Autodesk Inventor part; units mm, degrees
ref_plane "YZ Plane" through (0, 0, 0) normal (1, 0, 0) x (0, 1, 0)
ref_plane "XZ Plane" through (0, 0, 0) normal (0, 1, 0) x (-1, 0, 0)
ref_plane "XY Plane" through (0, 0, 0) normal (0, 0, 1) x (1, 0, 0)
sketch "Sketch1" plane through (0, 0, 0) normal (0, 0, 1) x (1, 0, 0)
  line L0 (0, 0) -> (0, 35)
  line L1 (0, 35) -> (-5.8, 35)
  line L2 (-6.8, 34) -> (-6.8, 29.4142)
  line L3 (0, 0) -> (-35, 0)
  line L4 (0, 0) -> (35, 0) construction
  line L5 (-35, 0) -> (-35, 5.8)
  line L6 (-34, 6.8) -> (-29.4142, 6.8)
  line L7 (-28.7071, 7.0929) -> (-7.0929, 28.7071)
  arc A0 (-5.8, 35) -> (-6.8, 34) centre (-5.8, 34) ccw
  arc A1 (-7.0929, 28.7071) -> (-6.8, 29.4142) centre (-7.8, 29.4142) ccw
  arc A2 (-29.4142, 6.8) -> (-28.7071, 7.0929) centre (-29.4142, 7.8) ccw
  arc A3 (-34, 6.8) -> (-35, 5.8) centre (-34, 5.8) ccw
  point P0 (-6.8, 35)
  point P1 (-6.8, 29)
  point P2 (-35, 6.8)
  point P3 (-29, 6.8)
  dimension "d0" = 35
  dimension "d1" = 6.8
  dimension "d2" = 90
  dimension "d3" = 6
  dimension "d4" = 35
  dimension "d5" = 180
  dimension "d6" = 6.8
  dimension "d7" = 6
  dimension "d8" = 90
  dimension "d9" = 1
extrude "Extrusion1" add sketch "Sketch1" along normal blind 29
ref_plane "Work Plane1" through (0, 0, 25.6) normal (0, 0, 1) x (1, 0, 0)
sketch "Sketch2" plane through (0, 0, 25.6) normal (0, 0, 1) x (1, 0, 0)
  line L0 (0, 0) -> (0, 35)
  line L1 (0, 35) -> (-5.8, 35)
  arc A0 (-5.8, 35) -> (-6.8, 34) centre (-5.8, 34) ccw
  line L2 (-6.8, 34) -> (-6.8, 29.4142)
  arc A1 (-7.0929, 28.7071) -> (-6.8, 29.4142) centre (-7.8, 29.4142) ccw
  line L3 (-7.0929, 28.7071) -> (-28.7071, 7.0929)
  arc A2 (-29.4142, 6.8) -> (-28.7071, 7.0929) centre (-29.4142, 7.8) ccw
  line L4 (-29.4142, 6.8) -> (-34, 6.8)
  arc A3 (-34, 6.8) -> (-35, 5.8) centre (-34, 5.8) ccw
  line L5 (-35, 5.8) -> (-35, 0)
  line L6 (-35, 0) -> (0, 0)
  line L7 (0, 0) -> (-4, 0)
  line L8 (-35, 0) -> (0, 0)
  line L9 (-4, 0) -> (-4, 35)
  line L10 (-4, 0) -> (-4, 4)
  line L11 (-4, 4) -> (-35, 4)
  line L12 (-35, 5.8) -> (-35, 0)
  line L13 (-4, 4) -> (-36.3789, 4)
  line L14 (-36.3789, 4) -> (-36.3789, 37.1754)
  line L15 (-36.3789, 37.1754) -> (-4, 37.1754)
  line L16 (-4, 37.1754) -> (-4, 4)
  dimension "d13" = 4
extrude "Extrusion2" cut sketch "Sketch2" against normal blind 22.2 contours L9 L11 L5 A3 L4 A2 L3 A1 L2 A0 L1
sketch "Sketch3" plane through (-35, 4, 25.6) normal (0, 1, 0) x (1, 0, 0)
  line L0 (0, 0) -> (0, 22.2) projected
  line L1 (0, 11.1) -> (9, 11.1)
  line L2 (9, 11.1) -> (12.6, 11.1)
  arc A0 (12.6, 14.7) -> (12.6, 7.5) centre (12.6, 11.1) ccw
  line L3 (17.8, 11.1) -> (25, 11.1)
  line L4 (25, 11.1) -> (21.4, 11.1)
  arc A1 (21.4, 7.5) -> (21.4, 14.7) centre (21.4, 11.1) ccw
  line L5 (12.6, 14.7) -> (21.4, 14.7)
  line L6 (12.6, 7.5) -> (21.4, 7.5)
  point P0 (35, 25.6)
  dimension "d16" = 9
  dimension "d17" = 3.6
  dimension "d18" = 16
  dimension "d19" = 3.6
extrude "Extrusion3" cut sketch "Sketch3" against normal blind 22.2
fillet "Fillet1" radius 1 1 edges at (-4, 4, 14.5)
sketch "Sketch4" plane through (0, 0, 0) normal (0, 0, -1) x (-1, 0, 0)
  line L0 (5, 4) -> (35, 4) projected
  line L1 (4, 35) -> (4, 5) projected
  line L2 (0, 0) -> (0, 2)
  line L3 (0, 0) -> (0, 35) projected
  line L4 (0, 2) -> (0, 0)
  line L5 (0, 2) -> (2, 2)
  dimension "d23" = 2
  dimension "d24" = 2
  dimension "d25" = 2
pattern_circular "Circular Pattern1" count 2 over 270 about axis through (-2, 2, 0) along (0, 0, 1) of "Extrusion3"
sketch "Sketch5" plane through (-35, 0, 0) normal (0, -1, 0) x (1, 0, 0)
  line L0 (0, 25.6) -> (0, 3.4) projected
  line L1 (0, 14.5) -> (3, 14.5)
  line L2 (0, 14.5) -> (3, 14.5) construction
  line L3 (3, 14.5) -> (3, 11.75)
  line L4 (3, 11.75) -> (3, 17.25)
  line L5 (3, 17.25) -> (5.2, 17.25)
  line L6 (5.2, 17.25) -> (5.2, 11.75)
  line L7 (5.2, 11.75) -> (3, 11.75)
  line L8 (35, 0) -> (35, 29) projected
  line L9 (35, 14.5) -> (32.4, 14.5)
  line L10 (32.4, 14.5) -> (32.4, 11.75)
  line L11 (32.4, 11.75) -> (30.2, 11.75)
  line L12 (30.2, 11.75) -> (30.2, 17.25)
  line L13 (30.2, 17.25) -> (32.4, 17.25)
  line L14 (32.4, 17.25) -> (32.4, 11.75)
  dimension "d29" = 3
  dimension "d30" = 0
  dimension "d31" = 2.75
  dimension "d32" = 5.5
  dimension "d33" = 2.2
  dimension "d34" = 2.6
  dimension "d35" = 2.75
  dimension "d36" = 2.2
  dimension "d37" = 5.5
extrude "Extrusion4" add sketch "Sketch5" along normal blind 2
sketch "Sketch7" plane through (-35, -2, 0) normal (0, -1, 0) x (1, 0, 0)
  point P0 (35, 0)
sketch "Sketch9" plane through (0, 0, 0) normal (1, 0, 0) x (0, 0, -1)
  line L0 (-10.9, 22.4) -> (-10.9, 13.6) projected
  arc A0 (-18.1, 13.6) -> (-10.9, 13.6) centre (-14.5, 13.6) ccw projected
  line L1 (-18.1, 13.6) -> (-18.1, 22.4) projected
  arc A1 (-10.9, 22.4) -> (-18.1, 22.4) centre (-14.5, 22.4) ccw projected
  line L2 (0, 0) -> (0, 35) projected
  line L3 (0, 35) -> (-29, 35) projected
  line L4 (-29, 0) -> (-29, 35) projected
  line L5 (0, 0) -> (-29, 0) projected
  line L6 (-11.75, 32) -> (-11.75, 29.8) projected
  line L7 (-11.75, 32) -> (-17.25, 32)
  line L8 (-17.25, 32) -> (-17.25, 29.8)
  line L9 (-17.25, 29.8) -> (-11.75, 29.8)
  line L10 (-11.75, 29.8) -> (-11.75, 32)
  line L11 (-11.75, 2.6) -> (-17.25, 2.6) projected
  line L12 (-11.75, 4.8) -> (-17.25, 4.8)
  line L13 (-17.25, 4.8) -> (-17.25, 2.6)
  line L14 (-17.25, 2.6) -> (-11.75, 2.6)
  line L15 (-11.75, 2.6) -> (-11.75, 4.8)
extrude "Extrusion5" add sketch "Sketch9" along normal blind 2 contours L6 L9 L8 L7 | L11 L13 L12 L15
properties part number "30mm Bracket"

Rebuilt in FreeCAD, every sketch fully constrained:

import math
import FreeCAD as App
import Part
import Sketcher

V = App.Vector


def edges_at(feature, points):
    """Names of the edges that pass closest to the given points."""
    edges = feature.Shape.Edges
    near = lambda p: min(range(len(edges)), key=lambda i: edges[i].distToShape(Part.Vertex(*p))[0])
    return sorted({f"Edge{near(p) + 1}" for p in points})


def add_polygon(sketch, points):
    """Adds a closed chain of lines whose ends are joined by coincident constraints."""
    first, n = sketch.GeometryCount, len(points)
    for a, b in zip(points, points[1:] + points[:1]):
        sketch.addGeometry(Part.LineSegment(App.Vector(*a, 0), App.Vector(*b, 0)), False)
    for i in range(n):
        sketch.addConstraint(Sketcher.Constraint("Coincident", first + i, 2, first + (i + 1) % n, 1))

doc = App.newDocument("Part")
params = doc.addObject("Spreadsheet::Sheet", "Params")
for row, (alias, value) in enumerate([
    ("sketch1_radius", "1 mm"),
    ("sketch1_width", "35 mm"),
    ("pad1_length", "29 mm"),
    ("sketch2_radius", "1 mm"),
    ("sketch2_width", "31 mm"),
    ("sketch2_width2", "1.8 mm"),
    ("pocket1_length", "22.2 mm"),
    ("sketch3_radius", "3.6 mm"),
    ("sketch3_width", "8.8 mm"),
    ("pocket2_length", "22.2 mm"),
    ("fillet_radius", "1 mm"),
    ("sketch4_width", "2.2 mm"),
    ("sketch4_height", "5.5 mm"),
    ("pad2_length", "2 mm"),
    ("sketch5_width", "2.2 mm"),
    ("sketch5_height", "5.5 mm"),
    ("pad3_length", "2 mm"),
], start=1):
    params.set(f"A{row}", alias)
    params.set(f"B{row}", "=" + value)
    params.setAlias(f"B{row}", alias)

body = doc.addObject("PartDesign::Body", "Body")

sketch1 = body.newObject("Sketcher::SketchObject", "Sketch")
sketch1.AttachmentSupport = (doc.getObject("XY_Plane"), [""])
sketch1.MapMode = "FlatFace"
sketch1.addGeometry([
    Part.LineSegment(V(-35, 0, 0), V(0, 0, 0)),
    Part.LineSegment(V(0, 0, 0), V(0, 35, 0)),
    Part.LineSegment(V(0, 35, 0), V(-5.8, 35, 0)),
    Part.ArcOfCircle(Part.Circle(V(-5.8, 34, 0), V(0, 0, 1), 1), math.radians(90), math.radians(180)),
    Part.LineSegment(V(-6.8, 34, 0), V(-6.8, 29.4, 0)),
    Part.ArcOfCircle(Part.Circle(V(-7.8, 29.4, 0), V(0, 0, 1), 1), math.radians(-45), math.radians(0)),
    Part.LineSegment(V(-7.1, 28.7, 0), V(-28.7, 7.1, 0)),
    Part.ArcOfCircle(Part.Circle(V(-29.4, 7.8, 0), V(0, 0, 1), 1), math.radians(-90), math.radians(-45)),
    Part.LineSegment(V(-29.4, 6.8, 0), V(-34, 6.8, 0)),
    Part.ArcOfCircle(Part.Circle(V(-34, 5.8, 0), V(0, 0, 1), 1), math.radians(90), math.radians(180)),
    Part.LineSegment(V(-35, 5.8, 0), V(-35, 0, 0)),
], False)
sketch1.addConstraint([
    Sketcher.Constraint("Coincident", 0, 2, 1, 1),
    Sketcher.Constraint("Coincident", 1, 2, 2, 1),
    Sketcher.Constraint("Tangent", 2, 2, 3, 1),
    Sketcher.Constraint("Tangent", 3, 2, 4, 1),
    Sketcher.Constraint("Tangent", 4, 2, 5, 2),
    Sketcher.Constraint("Tangent", 5, 1, 6, 1),
    Sketcher.Constraint("Tangent", 6, 2, 7, 2),
    Sketcher.Constraint("Tangent", 7, 1, 8, 1),
    Sketcher.Constraint("Tangent", 8, 2, 9, 1),
    Sketcher.Constraint("Tangent", 9, 2, 10, 1),
    Sketcher.Constraint("Coincident", 10, 2, 0, 1),
    Sketcher.Constraint("Horizontal", 0),
    Sketcher.Constraint("Vertical", 1),
    Sketcher.Constraint("Horizontal", 2),
    Sketcher.Constraint("Vertical", 4),
    Sketcher.Constraint("Horizontal", 8),
    Sketcher.Constraint("Vertical", 10),
    Sketcher.Constraint("Coincident", 0, 2, -1, 1),
    Sketcher.Constraint("Equal", 3, 5),
    Sketcher.Constraint("Equal", 5, 7),
    Sketcher.Constraint("Equal", 7, 9),
    Sketcher.Constraint("Equal", 0, 1),
    Sketcher.Constraint("Equal", 8, 4),
    Sketcher.Constraint("Equal", 2, 10),
    Sketcher.Constraint("Radius", 3, 1.0),
    Sketcher.Constraint("DistanceX", 0, 1, 0, 2, 35.0),
    Sketcher.Constraint("DistanceX", 3, 2, -1, 1, 6.8),
    Sketcher.Constraint("Distance", 6, 30.567),
])
sketch1.setExpression("Constraints[24]", "Params.sketch1_radius")
sketch1.setExpression("Constraints[25]", "Params.sketch1_width")
pad1 = body.newObject("PartDesign::Pad", "Pad")
pad1.Profile = sketch1
pad1.setExpression("Length", "Params.pad1_length")

sketch2 = body.newObject("Sketcher::SketchObject", "Sketch001")
sketch2.AttachmentSupport = (doc.getObject("XY_Plane"), [""])
sketch2.MapMode = "FlatFace"
sketch2.AttachmentOffset = App.Placement(V(0, 0, 25.6), App.Rotation())
sketch2.addGeometry([
    Part.LineSegment(V(-4, 4, 0), V(-4, 35, 0)),
    Part.LineSegment(V(-4, 35, 0), V(-5.8, 35, 0)),
    Part.ArcOfCircle(Part.Circle(V(-5.8, 34, 0), V(0, 0, 1), 1), math.radians(90), math.radians(180)),
    Part.LineSegment(V(-6.8, 34, 0), V(-6.8, 29.4, 0)),
    Part.ArcOfCircle(Part.Circle(V(-7.8, 29.4, 0), V(0, 0, 1), 1), math.radians(-45), math.radians(0)),
    Part.LineSegment(V(-7.1, 28.7, 0), V(-28.7, 7.1, 0)),
    Part.ArcOfCircle(Part.Circle(V(-29.4, 7.8, 0), V(0, 0, 1), 1), math.radians(-90), math.radians(-45)),
    Part.LineSegment(V(-29.4, 6.8, 0), V(-34, 6.8, 0)),
    Part.ArcOfCircle(Part.Circle(V(-34, 5.8, 0), V(0, 0, 1), 1), math.radians(90), math.radians(180)),
    Part.LineSegment(V(-35, 5.8, 0), V(-35, 4, 0)),
    Part.LineSegment(V(-35, 4, 0), V(-4, 4, 0)),
], False)
sketch2.addConstraint([
    Sketcher.Constraint("Coincident", 0, 2, 1, 1),
    Sketcher.Constraint("Tangent", 1, 2, 2, 1),
    Sketcher.Constraint("Tangent", 2, 2, 3, 1),
    Sketcher.Constraint("Tangent", 3, 2, 4, 2),
    Sketcher.Constraint("Tangent", 4, 1, 5, 1),
    Sketcher.Constraint("Tangent", 5, 2, 6, 2),
    Sketcher.Constraint("Tangent", 6, 1, 7, 1),
    Sketcher.Constraint("Tangent", 7, 2, 8, 1),
    Sketcher.Constraint("Tangent", 8, 2, 9, 1),
    Sketcher.Constraint("Coincident", 9, 2, 10, 1),
    Sketcher.Constraint("Coincident", 10, 2, 0, 1),
    Sketcher.Constraint("Vertical", 0),
    Sketcher.Constraint("Horizontal", 1),
    Sketcher.Constraint("Vertical", 3),
    Sketcher.Constraint("Horizontal", 7),
    Sketcher.Constraint("Vertical", 9),
    Sketcher.Constraint("Horizontal", 10),
    Sketcher.Constraint("Equal", 2, 4),
    Sketcher.Constraint("Equal", 4, 6),
    Sketcher.Constraint("Equal", 6, 8),
    Sketcher.Constraint("Equal", 10, 0),
    Sketcher.Constraint("Equal", 7, 3),
    Sketcher.Constraint("Equal", 1, 9),
    Sketcher.Constraint("DistanceX", 0, 2, -1, 1, 4.0),
    Sketcher.Constraint("DistanceY", -1, 1, 9, 2, 4.0),
    Sketcher.Constraint("Radius", 2, 1.0),
    Sketcher.Constraint("DistanceX", 10, 1, 10, 2, 31.0),
    Sketcher.Constraint("DistanceX", 1, 2, 1, 1, 1.8),
    Sketcher.Constraint("Distance", 5, 30.567),
])
sketch2.setExpression("Constraints[25]", "Params.sketch2_radius")
sketch2.setExpression("Constraints[26]", "Params.sketch2_width")
sketch2.setExpression("Constraints[27]", "Params.sketch2_width2")
pocket1 = body.newObject("PartDesign::Pocket", "Pocket")
pocket1.Profile = sketch2
pocket1.setExpression("Length", "Params.pocket1_length")

sketch3 = body.newObject("Sketcher::SketchObject", "Sketch002")
sketch3.AttachmentSupport = (doc.getObject("XZ_Plane"), [""])
sketch3.MapMode = "FlatFace"
sketch3.AttachmentOffset = App.Placement(V(0, 0, -4), App.Rotation())
sketch3.addGeometry([
    Part.LineSegment(V(-13.6, 10.9, 0), V(-22.4, 10.9, 0)),
    Part.ArcOfCircle(Part.Circle(V(-22.4, 14.5, 0), V(0, 0, 1), 3.6), math.radians(90), math.radians(270)),
    Part.LineSegment(V(-22.4, 18.1, 0), V(-13.6, 18.1, 0)),
    Part.ArcOfCircle(Part.Circle(V(-13.6, 14.5, 0), V(0, 0, 1), 3.6), math.radians(-90), math.radians(90)),
], False)
sketch3.addConstraint([
    Sketcher.Constraint("Tangent", 0, 2, 1, 2),
    Sketcher.Constraint("Tangent", 1, 1, 2, 1),
    Sketcher.Constraint("Tangent", 2, 2, 3, 2),
    Sketcher.Constraint("Tangent", 3, 1, 0, 1),
    Sketcher.Constraint("Horizontal", 0),
    Sketcher.Constraint("Horizontal", 2),
    Sketcher.Constraint("Radius", 1, 3.6),
    Sketcher.Constraint("DistanceX", 0, 2, 0, 1, 8.8),
    Sketcher.Constraint("DistanceX", 1, 3, -1, 1, 22.4),
    Sketcher.Constraint("DistanceY", -1, 1, 1, 3, 14.5),
])
sketch3.setExpression("Constraints[6]", "Params.sketch3_radius")
sketch3.setExpression("Constraints[7]", "Params.sketch3_width")
pocket2 = body.newObject("PartDesign::Pocket", "Pocket001")
pocket2.Profile = sketch3
pocket2.setExpression("Length", "Params.pocket2_length")
pocket2.Reversed = True
doc.recompute()

fillet = body.newObject("PartDesign::Fillet", "Fillet")
fillet.Base = (pocket2, edges_at(pocket2, [(-4, 4, 14.5)]))
fillet.setExpression("Radius", "Params.fillet_radius")
doc.recompute()

datumline = body.newObject("PartDesign::Line", "DatumLine")
datumline.Placement = App.Placement(V(-2, 2, 0), App.Rotation(V(0, 0, 1), V(0, 0, 1)))
polarpattern = body.newObject("PartDesign::PolarPattern", "PolarPattern")
polarpattern.Originals = [pocket2]
polarpattern.Axis = (datumline, [""])
polarpattern.Angle = 90
polarpattern.Occurrences = 2
polarpattern.Reversed = True
body.Tip = polarpattern

sketch4 = body.newObject("Sketcher::SketchObject", "Sketch003")
sketch4.AttachmentSupport = (doc.getObject("XZ_Plane"), [""])
sketch4.MapMode = "FlatFace"
add_polygon(sketch4, [(-32, 17.2), (-32, 11.8), (-29.8, 11.8), (-29.8, 17.2)])
add_polygon(sketch4, [(-2.6, 11.8), (-2.6, 17.2), (-4.8, 17.2), (-4.8, 11.8)])
sketch4.addConstraint([
    Sketcher.Constraint("Vertical", 0),
    Sketcher.Constraint("Horizontal", 1),
    Sketcher.Constraint("Vertical", 2),
    Sketcher.Constraint("Horizontal", 3),
    Sketcher.Constraint("Vertical", 4),
    Sketcher.Constraint("Horizontal", 5),
    Sketcher.Constraint("Vertical", 6),
    Sketcher.Constraint("Horizontal", 7),
    Sketcher.Constraint("Horizontal", 3, 2, 4, 2),
    Sketcher.Constraint("Horizontal", 1, 2, 6, 2),
    Sketcher.Constraint("Equal", 3, 5),
    Sketcher.Constraint("DistanceX", 1, 1, 1, 2, 2.2),
    Sketcher.Constraint("DistanceY", 0, 2, 0, 1, 5.5),
    Sketcher.Constraint("DistanceX", 4, 2, -1, 1, 2.6),
    Sketcher.Constraint("DistanceX", 0, 2, -1, 1, 32.0),
    Sketcher.Constraint("DistanceY", -1, 1, 0, 2, 11.75),
])
sketch4.setExpression("Constraints[19]", "Params.sketch4_width")
sketch4.setExpression("Constraints[20]", "Params.sketch4_height")
pad2 = body.newObject("PartDesign::Pad", "Pad001")
pad2.Profile = sketch4
pad2.setExpression("Length", "Params.pad2_length")

sketch5 = body.newObject("Sketcher::SketchObject", "Sketch004")
sketch5.AttachmentSupport = (doc.getObject("YZ_Plane"), [""])
sketch5.MapMode = "FlatFace"
add_polygon(sketch5, [(29.8, 11.8), (32, 11.8), (32, 17.2), (29.8, 17.2)])
add_polygon(sketch5, [(2.6, 17.2), (2.6, 11.8), (4.8, 11.8), (4.8, 17.2)])
sketch5.addConstraint([
    Sketcher.Constraint("Horizontal", 0),
    Sketcher.Constraint("Vertical", 1),
    Sketcher.Constraint("Horizontal", 2),
    Sketcher.Constraint("Vertical", 3),
    Sketcher.Constraint("Vertical", 4),
    Sketcher.Constraint("Horizontal", 5),
    Sketcher.Constraint("Vertical", 6),
    Sketcher.Constraint("Horizontal", 7),
    Sketcher.Constraint("Horizontal", 3, 2, 4, 2),
    Sketcher.Constraint("Horizontal", 2, 2, 6, 2),
    Sketcher.Constraint("Equal", 2, 5),
    Sketcher.Constraint("DistanceX", 0, 1, 0, 2, 2.2),
    Sketcher.Constraint("DistanceY", 1, 1, 1, 2, 5.5),
    Sketcher.Constraint("DistanceX", -1, 1, 0, 2, 32.0),
    Sketcher.Constraint("DistanceX", 5, 2, 3, 2, 25.0),
    Sketcher.Constraint("DistanceY", -1, 1, 0, 2, 11.75),
])
sketch5.setExpression("Constraints[19]", "Params.sketch5_width")
sketch5.setExpression("Constraints[20]", "Params.sketch5_height")
pad3 = body.newObject("PartDesign::Pad", "Pad002")
pad3.Profile = sketch5
pad3.setExpression("Length", "Params.pad3_length")

doc.recompute()
